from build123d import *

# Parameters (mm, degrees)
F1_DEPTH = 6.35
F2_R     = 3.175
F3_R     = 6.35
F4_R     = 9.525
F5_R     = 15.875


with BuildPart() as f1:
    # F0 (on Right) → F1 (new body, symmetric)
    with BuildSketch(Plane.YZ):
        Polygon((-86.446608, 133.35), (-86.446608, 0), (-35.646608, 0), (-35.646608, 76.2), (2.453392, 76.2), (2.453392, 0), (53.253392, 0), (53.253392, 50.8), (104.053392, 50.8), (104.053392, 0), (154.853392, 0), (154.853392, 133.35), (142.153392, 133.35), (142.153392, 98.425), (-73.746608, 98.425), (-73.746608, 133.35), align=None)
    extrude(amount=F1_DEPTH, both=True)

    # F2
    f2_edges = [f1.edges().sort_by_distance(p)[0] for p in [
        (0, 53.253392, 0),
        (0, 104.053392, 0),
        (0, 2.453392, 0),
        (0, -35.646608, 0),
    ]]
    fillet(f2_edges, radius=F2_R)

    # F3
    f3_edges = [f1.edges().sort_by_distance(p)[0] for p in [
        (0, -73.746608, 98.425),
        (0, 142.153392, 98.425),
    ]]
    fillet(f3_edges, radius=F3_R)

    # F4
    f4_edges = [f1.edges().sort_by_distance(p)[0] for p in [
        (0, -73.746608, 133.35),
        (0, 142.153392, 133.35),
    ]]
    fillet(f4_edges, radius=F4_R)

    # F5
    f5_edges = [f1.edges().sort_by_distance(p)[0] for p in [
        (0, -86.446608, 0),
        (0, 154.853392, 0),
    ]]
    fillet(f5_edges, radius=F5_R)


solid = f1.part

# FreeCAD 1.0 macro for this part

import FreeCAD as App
import Part
import Sketcher

V = App.Vector
Q = App.Units.Quantity


def edges_at(feature, points):
    """Names of the edges that pass closest to the given points."""
    edges = feature.Shape.Edges
    near = lambda p: min(range(len(edges)), key=lambda i: edges[i].distToShape(Part.Vertex(*p))[0])
    return sorted({f"Edge{near(p) + 1}" for p in points})

doc = App.newDocument("Part")
body = doc.addObject("PartDesign::Body", "Body")

# Sketch on YZ plane
sketch1 = body.newObject("Sketcher::SketchObject", "Sketch")
sketch1.AttachmentSupport = (doc.getObject("YZ_Plane"), [""])
sketch1.MapMode = "FlatFace"
sketch1.addGeometry([
    Part.LineSegment(V(-86.446608, 133.35, 0), V(-86.446608, 0, 0)),  # 0
    Part.LineSegment(V(-86.446608, 0, 0), V(-35.646608, 0, 0)),  # 1
    Part.LineSegment(V(-35.646608, 0, 0), V(-35.646608, 76.2, 0)),  # 2
    Part.LineSegment(V(-35.646608, 76.2, 0), V(2.453392, 76.2, 0)),  # 3
    Part.LineSegment(V(2.453392, 76.2, 0), V(2.453392, 0, 0)),  # 4
    Part.LineSegment(V(2.453392, 0, 0), V(53.253392, 0, 0)),  # 5
    Part.LineSegment(V(53.253392, 0, 0), V(53.253392, 50.8, 0)),  # 6
    Part.LineSegment(V(53.253392, 50.8, 0), V(104.053392, 50.8, 0)),  # 7
    Part.LineSegment(V(104.053392, 50.8, 0), V(104.053392, 0, 0)),  # 8
    Part.LineSegment(V(104.053392, 0, 0), V(154.853392, 0, 0)),  # 9
    Part.LineSegment(V(154.853392, 0, 0), V(154.853392, 133.35, 0)),  # 10
    Part.LineSegment(V(154.853392, 133.35, 0), V(142.153392, 133.35, 0)),  # 11
    Part.LineSegment(V(142.153392, 133.35, 0), V(142.153392, 98.425, 0)),  # 12
    Part.LineSegment(V(142.153392, 98.425, 0), V(-73.746608, 98.425, 0)),  # 13
    Part.LineSegment(V(-73.746608, 98.425, 0), V(-73.746608, 133.35, 0)),  # 14
    Part.LineSegment(V(-73.746608, 133.35, 0), V(-86.446608, 133.35, 0)),  # 15
], False)
sketch1.addConstraint([
    Sketcher.Constraint("Coincident", 0, 2, 1, 1),
    Sketcher.Constraint("Coincident", 1, 2, 2, 1),
    Sketcher.Constraint("Coincident", 2, 2, 3, 1),
    Sketcher.Constraint("Coincident", 3, 2, 4, 1),
    Sketcher.Constraint("Coincident", 4, 2, 5, 1),
    Sketcher.Constraint("Coincident", 5, 2, 6, 1),
    Sketcher.Constraint("Coincident", 6, 2, 7, 1),
    Sketcher.Constraint("Coincident", 7, 2, 8, 1),
    Sketcher.Constraint("Coincident", 8, 2, 9, 1),
    Sketcher.Constraint("Coincident", 9, 2, 10, 1),
    Sketcher.Constraint("Coincident", 10, 2, 11, 1),
    Sketcher.Constraint("Coincident", 11, 2, 12, 1),
    Sketcher.Constraint("Coincident", 12, 2, 13, 1),
    Sketcher.Constraint("Coincident", 13, 2, 14, 1),
    Sketcher.Constraint("Coincident", 14, 2, 15, 1),
    Sketcher.Constraint("Coincident", 15, 2, 0, 1),
    Sketcher.Constraint("Vertical", 0),
    Sketcher.Constraint("Horizontal", 1),
    Sketcher.Constraint("Vertical", 2),
    Sketcher.Constraint("Horizontal", 3),
    Sketcher.Constraint("Vertical", 4),
    Sketcher.Constraint("Horizontal", 5),
    Sketcher.Constraint("Vertical", 6),
    Sketcher.Constraint("Horizontal", 7),
    Sketcher.Constraint("Vertical", 8),
    Sketcher.Constraint("Horizontal", 9),
    Sketcher.Constraint("Vertical", 10),
    Sketcher.Constraint("Horizontal", 11),
    Sketcher.Constraint("Vertical", 12),
    Sketcher.Constraint("Horizontal", 13),
    Sketcher.Constraint("Vertical", 14),
    Sketcher.Constraint("Horizontal", 15),
    Sketcher.Constraint("PointOnObject", 0, 2, -1),
    Sketcher.Constraint("PointOnObject", 4, 2, -1),
    Sketcher.Constraint("PointOnObject", 8, 2, -1),
    Sketcher.Constraint("Horizontal", 11, 2, 14, 2),
    Sketcher.Constraint("Equal", 1, 5),
    Sketcher.Constraint("Equal", 5, 7),
    Sketcher.Constraint("Equal", 7, 9),
    Sketcher.Constraint("Equal", 11, 15),
    Sketcher.Constraint("Equal", 9, 6),
    Sketcher.Constraint("DistanceX", 1, 1, 1, 2, Q("2 in")),
    Sketcher.Constraint("DistanceY", 2, 1, 2, 2, Q("3 in")),
    Sketcher.Constraint("DistanceX", 3, 1, 3, 2, Q("1.5 in")),
    Sketcher.Constraint("DistanceX", 11, 2, 11, 1, Q("0.5 in")),
    Sketcher.Constraint("DistanceY", 0, 2, 0, 1, Q("5.25 in")),
    Sketcher.Constraint("DistanceY", 12, 2, 12, 1, Q("1.375 in")),
    Sketcher.Constraint("DistanceX", -1, 1, 3, 2, Q("2.453392 mm")),
])
pad1 = body.newObject("PartDesign::Pad", "Pad")
pad1.Profile = sketch1
pad1.Length = Q("0.5 in")
pad1.Midplane = True
doc.recompute()

fillet = body.newObject("PartDesign::Fillet", "Fillet")
fillet.Base = (pad1, edges_at(pad1, [
    (0, 53.253, 0),
    (0, 104.053, 0),
    (0, 2.453, 0),
    (0, -35.647, 0),
]))
fillet.Radius = Q("0.125 in")
doc.recompute()

fillet2 = body.newObject("PartDesign::Fillet", "Fillet001")
fillet2.Base = (fillet, edges_at(fillet, [(0, -73.747, 98.425), (0, 142.153, 98.425)]))
fillet2.Radius = Q("0.25 in")
doc.recompute()

fillet3 = body.newObject("PartDesign::Fillet", "Fillet002")
fillet3.Base = (fillet2, edges_at(fillet2, [(0, -73.747, 133.35), (0, 142.153, 133.35)]))
fillet3.Radius = Q("0.375 in")
doc.recompute()

fillet4 = body.newObject("PartDesign::Fillet", "Fillet003")
fillet4.Base = (fillet3, edges_at(fillet3, [(0, -86.447, 0), (0, 154.853, 0)]))
fillet4.Radius = Q("0.625 in")

doc.recompute()
